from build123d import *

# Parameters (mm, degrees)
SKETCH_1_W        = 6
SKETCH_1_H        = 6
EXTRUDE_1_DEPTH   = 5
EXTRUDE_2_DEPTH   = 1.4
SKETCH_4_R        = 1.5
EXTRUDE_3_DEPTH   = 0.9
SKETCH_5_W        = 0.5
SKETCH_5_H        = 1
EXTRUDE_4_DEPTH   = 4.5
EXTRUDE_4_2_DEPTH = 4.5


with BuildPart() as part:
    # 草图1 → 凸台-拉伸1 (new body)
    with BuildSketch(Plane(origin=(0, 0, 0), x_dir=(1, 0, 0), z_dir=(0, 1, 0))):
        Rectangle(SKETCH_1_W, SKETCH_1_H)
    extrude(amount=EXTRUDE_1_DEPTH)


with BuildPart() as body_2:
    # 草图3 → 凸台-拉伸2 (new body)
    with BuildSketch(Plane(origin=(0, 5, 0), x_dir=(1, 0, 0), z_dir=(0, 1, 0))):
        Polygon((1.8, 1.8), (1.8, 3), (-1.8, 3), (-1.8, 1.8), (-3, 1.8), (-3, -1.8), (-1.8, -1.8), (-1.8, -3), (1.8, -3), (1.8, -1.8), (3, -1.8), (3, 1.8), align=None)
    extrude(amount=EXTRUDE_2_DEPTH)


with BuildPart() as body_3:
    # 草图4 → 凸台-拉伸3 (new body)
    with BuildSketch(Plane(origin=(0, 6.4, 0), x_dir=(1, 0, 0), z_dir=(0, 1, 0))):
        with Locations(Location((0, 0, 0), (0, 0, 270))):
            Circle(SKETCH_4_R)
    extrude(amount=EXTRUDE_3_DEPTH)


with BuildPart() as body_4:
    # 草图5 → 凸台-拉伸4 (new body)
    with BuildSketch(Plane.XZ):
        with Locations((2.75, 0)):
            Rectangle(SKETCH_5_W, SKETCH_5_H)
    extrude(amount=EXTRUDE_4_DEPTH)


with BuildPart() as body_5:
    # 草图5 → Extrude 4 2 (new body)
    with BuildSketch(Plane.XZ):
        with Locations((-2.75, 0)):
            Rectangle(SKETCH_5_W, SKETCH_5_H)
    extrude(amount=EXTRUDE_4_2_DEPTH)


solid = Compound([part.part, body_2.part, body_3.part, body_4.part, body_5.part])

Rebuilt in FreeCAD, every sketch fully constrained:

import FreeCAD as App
import Part
import Sketcher
from FreeCAD import Vector

doc = App.newDocument("Part")
body = doc.addObject("PartDesign::Body", "Body")

sketch1 = body.newObject("Sketcher::SketchObject", "Sketch")
sketch1.AttachmentSupport = (doc.getObject("XZ_Plane"), [""])
sketch1.MapMode = "FlatFace"
sketch1.addGeometry([
    Part.LineSegment(Vector(-3, -3, 0), Vector(-3, 3, 0)),
    Part.LineSegment(Vector(-3, 3, 0), Vector(3, 3, 0)),
    Part.LineSegment(Vector(3, 3, 0), Vector(3, -3, 0)),
    Part.LineSegment(Vector(3, -3, 0), Vector(-3, -3, 0)),
], False)
sketch1.addConstraint([
    Sketcher.Constraint("Coincident", 0, 2, 1, 1),
    Sketcher.Constraint("Coincident", 1, 2, 2, 1),
    Sketcher.Constraint("Coincident", 2, 2, 3, 1),
    Sketcher.Constraint("Coincident", 3, 2, 0, 1),
    Sketcher.Constraint("Vertical", 0),
    Sketcher.Constraint("Horizontal", 1),
    Sketcher.Constraint("Vertical", 2),
    Sketcher.Constraint("Horizontal", 3),
    Sketcher.Constraint("Symmetric", 0, 2, 2, 2, -1, 1),
    Sketcher.Constraint("Equal", 3, 0),
    Sketcher.Constraint("DistanceX", 1, 1, 1, 2, 6.0),
])
pad1 = body.newObject("PartDesign::Pad", "Pad")
pad1.Profile = sketch1
pad1.Length = 5
pad1.Reversed = True
body2 = doc.addObject("PartDesign::Body", "Body001")

sketch2 = body2.newObject("Sketcher::SketchObject", "Sketch001")
sketch2.AttachmentSupport = (doc.getObject("XZ_Plane001"), [""])
sketch2.MapMode = "FlatFace"
sketch2.AttachmentOffset = App.Placement(Vector(0, 0, -5), App.Rotation())
sketch2.addGeometry([
    Part.LineSegment(Vector(1.8, -1.8, 0), Vector(1.8, -3, 0)),
    Part.LineSegment(Vector(1.8, -3, 0), Vector(-1.8, -3, 0)),
    Part.LineSegment(Vector(-1.8, -3, 0), Vector(-1.8, -1.8, 0)),
    Part.LineSegment(Vector(-1.8, -1.8, 0), Vector(-3, -1.8, 0)),
    Part.LineSegment(Vector(-3, -1.8, 0), Vector(-3, 1.8, 0)),
    Part.LineSegment(Vector(-3, 1.8, 0), Vector(-1.8, 1.8, 0)),
    Part.LineSegment(Vector(-1.8, 1.8, 0), Vector(-1.8, 3, 0)),
    Part.LineSegment(Vector(-1.8, 3, 0), Vector(1.8, 3, 0)),
    Part.LineSegment(Vector(1.8, 3, 0), Vector(1.8, 1.8, 0)),
    Part.LineSegment(Vector(1.8, 1.8, 0), Vector(3, 1.8, 0)),
    Part.LineSegment(Vector(3, 1.8, 0), Vector(3, -1.8, 0)),
    Part.LineSegment(Vector(3, -1.8, 0), Vector(1.8, -1.8, 0)),
], False)
sketch2.addConstraint([
    Sketcher.Constraint("Coincident", 0, 2, 1, 1),
    Sketcher.Constraint("Coincident", 1, 2, 2, 1),
    Sketcher.Constraint("Coincident", 2, 2, 3, 1),
    Sketcher.Constraint("Coincident", 3, 2, 4, 1),
    Sketcher.Constraint("Coincident", 4, 2, 5, 1),
    Sketcher.Constraint("Coincident", 5, 2, 6, 1),
    Sketcher.Constraint("Coincident", 6, 2, 7, 1),
    Sketcher.Constraint("Coincident", 7, 2, 8, 1),
    Sketcher.Constraint("Coincident", 8, 2, 9, 1),
    Sketcher.Constraint("Coincident", 9, 2, 10, 1),
    Sketcher.Constraint("Coincident", 10, 2, 11, 1),
    Sketcher.Constraint("Coincident", 11, 2, 0, 1),
    Sketcher.Constraint("Vertical", 0),
    Sketcher.Constraint("Horizontal", 1),
    Sketcher.Constraint("Vertical", 2),
    Sketcher.Constraint("Horizontal", 3),
    Sketcher.Constraint("Vertical", 4),
    Sketcher.Constraint("Horizontal", 5),
    Sketcher.Constraint("Vertical", 6),
    Sketcher.Constraint("Horizontal", 7),
    Sketcher.Constraint("Vertical", 8),
    Sketcher.Constraint("Horizontal", 9),
    Sketcher.Constraint("Vertical", 10),
    Sketcher.Constraint("Horizontal", 11),
    Sketcher.Constraint("Symmetric", 0, 2, 6, 2, -1, 1),
    Sketcher.Constraint("Symmetric", 2, 2, 8, 2, -1, 1),
    Sketcher.Constraint("Symmetric", 4, 2, 10, 2, -1, 1),
    Sketcher.Constraint("Symmetric", 5, 2, 8, 2, -2),
    Sketcher.Constraint("Equal", 11, 0),
    Sketcher.Constraint("Equal", 7, 4),
    Sketcher.Constraint("DistanceX", 1, 2, 1, 1, 3.6),
    Sketcher.Constraint("DistanceX", 3, 2, 3, 1, 1.2),
])
pad2 = body2.newObject("PartDesign::Pad", "Pad001")
pad2.Profile = sketch2
pad2.Length = 1.4
pad2.Reversed = True
body3 = doc.addObject("PartDesign::Body", "Body002")

sketch3 = body3.newObject("Sketcher::SketchObject", "Sketch002")
sketch3.AttachmentSupport = (doc.getObject("XZ_Plane002"), [""])
sketch3.MapMode = "FlatFace"
sketch3.AttachmentOffset = App.Placement(Vector(0, 0, -6.4), App.Rotation())
sketch3.addGeometry(Part.Circle(Vector(0, 0, 0), Vector(0, 0, 1), 1.5), False)
sketch3.addConstraint([
    Sketcher.Constraint("Coincident", 0, 3, -1, 1),
    Sketcher.Constraint("Diameter", 0, 3.0),
])
pad3 = body3.newObject("PartDesign::Pad", "Pad002")
pad3.Profile = sketch3
pad3.Length = 0.9
pad3.Reversed = True
body4 = doc.addObject("PartDesign::Body", "Body003")

sketch4 = body4.newObject("Sketcher::SketchObject", "Sketch003")
sketch4.AttachmentSupport = (doc.getObject("XZ_Plane003"), [""])
sketch4.MapMode = "FlatFace"
sketch4.addGeometry([
    Part.LineSegment(Vector(2.5, 0.5, 0), Vector(2.5, -0.5, 0)),
    Part.LineSegment(Vector(2.5, -0.5, 0), Vector(3, -0.5, 0)),
    Part.LineSegment(Vector(3, -0.5, 0), Vector(3, 0.5, 0)),
    Part.LineSegment(Vector(3, 0.5, 0), Vector(2.5, 0.5, 0)),
], False)
sketch4.addConstraint([
    Sketcher.Constraint("Coincident", 0, 2, 1, 1),
    Sketcher.Constraint("Coincident", 1, 2, 2, 1),
    Sketcher.Constraint("Coincident", 2, 2, 3, 1),
    Sketcher.Constraint("Coincident", 3, 2, 0, 1),
    Sketcher.Constraint("Vertical", 0),
    Sketcher.Constraint("Horizontal", 1),
    Sketcher.Constraint("Vertical", 2),
    Sketcher.Constraint("Horizontal", 3),
    Sketcher.Constraint("DistanceY", 0, 2, 0, 1, 1.0),
    Sketcher.Constraint("DistanceX", 1, 1, 1, 2, 0.5),
    Sketcher.Constraint("DistanceX", -1, 1, 1, 2, 3.0),
    Sketcher.Constraint("DistanceY", 0, 2, -1, 1, 0.5),
])
pad4 = body4.newObject("PartDesign::Pad", "Pad003")
pad4.Profile = sketch4
pad4.Length = 4.5
body5 = doc.addObject("PartDesign::Body", "Body004")

sketch5 = body5.newObject("Sketcher::SketchObject", "Sketch004")
sketch5.AttachmentSupport = (doc.getObject("XZ_Plane004"), [""])
sketch5.MapMode = "FlatFace"
sketch5.addGeometry([
    Part.LineSegment(Vector(-3, 0.5, 0), Vector(-3, -0.5, 0)),
    Part.LineSegment(Vector(-3, -0.5, 0), Vector(-2.5, -0.5, 0)),
    Part.LineSegment(Vector(-2.5, -0.5, 0), Vector(-2.5, 0.5, 0)),
    Part.LineSegment(Vector(-2.5, 0.5, 0), Vector(-3, 0.5, 0)),
], False)
sketch5.addConstraint([
    Sketcher.Constraint("Coincident", 0, 2, 1, 1),
    Sketcher.Constraint("Coincident", 1, 2, 2, 1),
    Sketcher.Constraint("Coincident", 2, 2, 3, 1),
    Sketcher.Constraint("Coincident", 3, 2, 0, 1),
    Sketcher.Constraint("Vertical", 0),
    Sketcher.Constraint("Horizontal", 1),
    Sketcher.Constraint("Vertical", 2),
    Sketcher.Constraint("Horizontal", 3),
    Sketcher.Constraint("DistanceY", 0, 2, 0, 1, 1.0),
    Sketcher.Constraint("DistanceX", 1, 1, 1, 2, 0.5),
    Sketcher.Constraint("DistanceX", 0, 2, -1, 1, 3.0),
    Sketcher.Constraint("DistanceY", 0, 2, -1, 1, 0.5),
])
pad5 = body5.newObject("PartDesign::Pad", "Pad004")
pad5.Profile = sketch5
pad5.Length = 4.5

doc.recompute()
